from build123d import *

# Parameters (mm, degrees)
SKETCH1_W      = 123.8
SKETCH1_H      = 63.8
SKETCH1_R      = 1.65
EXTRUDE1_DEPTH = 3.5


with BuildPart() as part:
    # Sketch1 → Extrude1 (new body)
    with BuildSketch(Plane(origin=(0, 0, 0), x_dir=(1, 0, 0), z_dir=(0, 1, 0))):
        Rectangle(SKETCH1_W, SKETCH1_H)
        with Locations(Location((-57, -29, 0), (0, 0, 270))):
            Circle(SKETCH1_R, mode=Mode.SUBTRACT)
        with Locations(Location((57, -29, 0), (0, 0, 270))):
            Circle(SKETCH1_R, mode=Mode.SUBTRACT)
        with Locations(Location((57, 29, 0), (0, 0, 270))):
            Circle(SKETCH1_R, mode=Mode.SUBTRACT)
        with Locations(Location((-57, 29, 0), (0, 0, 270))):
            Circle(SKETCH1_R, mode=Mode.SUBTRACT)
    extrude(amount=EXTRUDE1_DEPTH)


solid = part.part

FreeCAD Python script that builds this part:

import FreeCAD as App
import Part
import Sketcher
from FreeCAD import Vector
Q = App.Units.Quantity


def add_polygon(sketch, points):
    """Adds a closed chain of lines whose ends are joined by coincident constraints."""
    first, n = sketch.GeometryCount, len(points)
    for a, b in zip(points, points[1:] + points[:1]):
        sketch.addGeometry(Part.LineSegment(App.Vector(*a, 0), App.Vector(*b, 0)), False)
    for i in range(n):
        sketch.addConstraint(Sketcher.Constraint("Coincident", first + i, 2, first + (i + 1) % n, 1))

doc = App.newDocument("Part")
body = doc.addObject("PartDesign::Body", "Body")

# Sketch on XZ plane
sketch1 = body.newObject("Sketcher::SketchObject", "Sketch")
sketch1.AttachmentSupport = (doc.getObject("XZ_Plane"), [""])
sketch1.MapMode = "FlatFace"
add_polygon(sketch1, [(-61.9, -31.9), (-61.9, 31.9), (61.9, 31.9), (61.9, -31.9)])  # lines 0-3
sketch1.addGeometry(Part.Circle(Vector(-57, 29, 0), Vector(0, 0, 1), 1.65), False)  # 4
sketch1.addGeometry(Part.Circle(Vector(57, 29, 0), Vector(0, 0, 1), 1.65), False)  # 5
sketch1.addGeometry(Part.Circle(Vector(-57, -29, 0), Vector(0, 0, 1), 1.65), False)  # 6
sketch1.addGeometry(Part.Circle(Vector(57, -29, 0), Vector(0, 0, 1), 1.65), False)  # 7
sketch1.addConstraint(Sketcher.Constraint("Vertical", 0))
sketch1.addConstraint(Sketcher.Constraint("Horizontal", 1))
sketch1.addConstraint(Sketcher.Constraint("Vertical", 2))
sketch1.addConstraint(Sketcher.Constraint("Horizontal", 3))
sketch1.addConstraint(Sketcher.Constraint("Equal", 4, 5))
sketch1.addConstraint(Sketcher.Constraint("Equal", 5, 6))
sketch1.addConstraint(Sketcher.Constraint("Equal", 6, 7))
sketch1.addConstraint(Sketcher.Constraint("Symmetric", 5, 3, 6, 3, -1, 1))
sketch1.addConstraint(Sketcher.Constraint("Symmetric", 4, 3, 7, 3, -1, 1))
sketch1.addConstraint(Sketcher.Constraint("Symmetric", 0, 2, 2, 2, -1, 1))
sketch1.addConstraint(Sketcher.Constraint("Symmetric", 4, 3, 5, 3, -2))
sketch1.addConstraint(Sketcher.Constraint("Diameter", 4, Q("3.3 mm")))
sketch1.addConstraint(Sketcher.Constraint("DistanceX", 1, 1, 1, 2, Q("123.8 mm")))
sketch1.addConstraint(Sketcher.Constraint("DistanceY", 0, 1, 0, 2, Q("63.8 mm")))
sketch1.addConstraint(Sketcher.Constraint("DistanceX", 4, 3, -1, 1, Q("57 mm")))
sketch1.addConstraint(Sketcher.Constraint("DistanceY", -1, 1, 4, 3, Q("29 mm")))
pad1 = body.newObject("PartDesign::Pad", "Pad")
pad1.Profile = sketch1
pad1.Length = 3.5
pad1.Reversed = True

doc.recompute()
